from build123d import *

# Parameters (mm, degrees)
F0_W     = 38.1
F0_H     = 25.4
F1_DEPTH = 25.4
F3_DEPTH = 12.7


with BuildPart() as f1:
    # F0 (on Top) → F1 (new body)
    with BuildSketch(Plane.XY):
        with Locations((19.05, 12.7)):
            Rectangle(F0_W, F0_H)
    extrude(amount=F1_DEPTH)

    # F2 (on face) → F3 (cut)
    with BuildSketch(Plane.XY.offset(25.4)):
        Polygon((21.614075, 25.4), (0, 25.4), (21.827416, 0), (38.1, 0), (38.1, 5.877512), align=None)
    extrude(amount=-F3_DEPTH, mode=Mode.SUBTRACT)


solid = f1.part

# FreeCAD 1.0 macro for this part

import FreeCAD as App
import Part
import Sketcher
from FreeCAD import Vector
Q = App.Units.Quantity

doc = App.newDocument("Part")
body = doc.addObject("PartDesign::Body", "Body")

sketch1 = body.newObject("Sketcher::SketchObject", "Sketch")
sketch1.AttachmentSupport = (doc.getObject("XY_Plane"), [""])
sketch1.MapMode = "FlatFace"
sketch1.addGeometry(Part.LineSegment(Vector(0, 25, 0), Vector(0, 0, 0)), False)
sketch1.addGeometry(Part.LineSegment(Vector(0, 0, 0), Vector(38, 0, 0)), False)
sketch1.addGeometry(Part.LineSegment(Vector(38, 0, 0), Vector(38, 25, 0)), False)
sketch1.addGeometry(Part.LineSegment(Vector(38, 25, 0), Vector(0, 25, 0)), False)
sketch1.addConstraint(Sketcher.Constraint("Coincident", 0, 2, 1, 1))
sketch1.addConstraint(Sketcher.Constraint("Coincident", 1, 2, 2, 1))
sketch1.addConstraint(Sketcher.Constraint("Coincident", 2, 2, 3, 1))
sketch1.addConstraint(Sketcher.Constraint("Coincident", 3, 2, 0, 1))
sketch1.addConstraint(Sketcher.Constraint("Vertical", 0))
sketch1.addConstraint(Sketcher.Constraint("Horizontal", 1))
sketch1.addConstraint(Sketcher.Constraint("Vertical", 2))
sketch1.addConstraint(Sketcher.Constraint("Horizontal", 3))
sketch1.addConstraint(Sketcher.Constraint("Coincident", 0, 2, -1, 1))
sketch1.addConstraint(Sketcher.Constraint("DistanceY", 0, 2, 0, 1, Q("1 in")))
sketch1.addConstraint(Sketcher.Constraint("DistanceX", 1, 1, 1, 2, Q("1.5 in")))
pad1 = body.newObject("PartDesign::Pad", "Pad")
pad1.Profile = sketch1
pad1.Length = Q("1 in")

sketch2 = body.newObject("Sketcher::SketchObject", "Sketch001")
sketch2.AttachmentSupport = (doc.getObject("XY_Plane"), [""])
sketch2.MapMode = "FlatFace"
sketch2.AttachmentOffset = App.Placement(Vector(0, 0, 1 * 25.4), App.Rotation())
sketch2.addGeometry(Part.LineSegment(Vector(22, 25, 0), Vector(0, 25, 0)), False)
sketch2.addGeometry(Part.LineSegment(Vector(0, 25, 0), Vector(22, 0, 0)), False)
sketch2.addGeometry(Part.LineSegment(Vector(22, 0, 0), Vector(38, 0, 0)), False)
sketch2.addGeometry(Part.LineSegment(Vector(38, 0, 0), Vector(38, 6, 0)), False)
sketch2.addGeometry(Part.LineSegment(Vector(38, 6, 0), Vector(22, 25, 0)), False)
sketch2.addConstraint(Sketcher.Constraint("Coincident", 0, 2, 1, 1))
sketch2.addConstraint(Sketcher.Constraint("Coincident", 1, 2, 2, 1))
sketch2.addConstraint(Sketcher.Constraint("Coincident", 2, 2, 3, 1))
sketch2.addConstraint(Sketcher.Constraint("Coincident", 3, 2, 4, 1))
sketch2.addConstraint(Sketcher.Constraint("Coincident", 4, 2, 0, 1))
sketch2.addConstraint(Sketcher.Constraint("Horizontal", 0))
sketch2.addConstraint(Sketcher.Constraint("Horizontal", 2))
sketch2.addConstraint(Sketcher.Constraint("Vertical", 3))
sketch2.addConstraint(Sketcher.Constraint("PointOnObject", 0, 2, -2))
sketch2.addConstraint(Sketcher.Constraint("PointOnObject", 1, 2, -1))
sketch2.addConstraint(Sketcher.Constraint("DistanceY", -1, 1, 0, 2, Q("1 in")))
sketch2.addConstraint(Sketcher.Constraint("DistanceX", -1, 1, 2, 2, Q("1.5 in")))
sketch2.addConstraint(Sketcher.Constraint("Distance", 1, Q("33.490239 mm")))
sketch2.addConstraint(Sketcher.Constraint("DistanceX", 0, 2, 0, 1, Q("21.614075 mm")))
sketch2.addConstraint(Sketcher.Constraint("DistanceY", 3, 1, 3, 2, Q("5.877512 mm")))
pocket1 = body.newObject("PartDesign::Pocket", "Pocket")
pocket1.Profile = sketch2
pocket1.Length = Q("0.5 in")

doc.recompute()
